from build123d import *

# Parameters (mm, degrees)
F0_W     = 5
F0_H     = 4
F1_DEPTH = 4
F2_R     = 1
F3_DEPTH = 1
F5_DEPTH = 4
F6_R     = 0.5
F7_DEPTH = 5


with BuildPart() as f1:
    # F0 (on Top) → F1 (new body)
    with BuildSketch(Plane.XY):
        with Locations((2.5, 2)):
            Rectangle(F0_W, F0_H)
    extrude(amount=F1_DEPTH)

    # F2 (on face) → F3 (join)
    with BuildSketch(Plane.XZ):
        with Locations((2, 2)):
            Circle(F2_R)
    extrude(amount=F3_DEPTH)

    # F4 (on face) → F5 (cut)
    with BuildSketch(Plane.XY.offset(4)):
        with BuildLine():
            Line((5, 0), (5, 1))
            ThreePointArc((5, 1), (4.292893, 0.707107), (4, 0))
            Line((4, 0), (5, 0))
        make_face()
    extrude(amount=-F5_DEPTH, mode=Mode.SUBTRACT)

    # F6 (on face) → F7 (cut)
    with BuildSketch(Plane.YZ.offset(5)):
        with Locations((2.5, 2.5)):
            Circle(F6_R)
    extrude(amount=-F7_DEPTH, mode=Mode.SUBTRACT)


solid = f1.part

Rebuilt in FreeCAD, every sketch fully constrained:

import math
import FreeCAD as App
import Part
import Sketcher


def add_polygon(sketch, points):
    """Adds a closed chain of lines whose ends are joined by coincident constraints."""
    first, n = sketch.GeometryCount, len(points)
    for a, b in zip(points, points[1:] + points[:1]):
        sketch.addGeometry(Part.LineSegment(App.Vector(*a, 0), App.Vector(*b, 0)), False)
    for i in range(n):
        sketch.addConstraint(Sketcher.Constraint("Coincident", first + i, 2, first + (i + 1) % n, 1))

doc = App.newDocument("Part")
params = doc.addObject("Spreadsheet::Sheet", "Params")
for row, (alias, value) in enumerate([
    ("sketch1_width", "5 mm"),
    ("sketch1_height", "4 mm"),
    ("pad1_length", "4 mm"),
    ("sketch2_diameter", "2 mm"),
    ("pad2_length", "1 mm"),
    ("sketch3_radius", "0.999999 mm"),
    ("pocket1_length", "4 mm"),
    ("sketch4_diameter", "1 mm"),
    ("pocket2_length", "5 mm"),
], start=1):
    params.set(f"A{row}", alias)
    params.set(f"B{row}", "=" + value)
    params.setAlias(f"B{row}", alias)

body = doc.addObject("PartDesign::Body", "Body")

# Sketch on XY plane
sketch1 = body.newObject("Sketcher::SketchObject", "Sketch")
sketch1.AttachmentSupport = (doc.getObject("XY_Plane"), [""])
sketch1.MapMode = "FlatFace"
add_polygon(sketch1, [(0, 4), (0, 0), (5, 0), (5, 4)])  # lines 0-3
sketch1.addConstraint([
    Sketcher.Constraint("Vertical", 0),
    Sketcher.Constraint("Horizontal", 1),
    Sketcher.Constraint("Vertical", 2),
    Sketcher.Constraint("Horizontal", 3),
    Sketcher.Constraint("Coincident", 0, 2, -1, 1),
    Sketcher.Constraint("DistanceX", 1, 1, 1, 2, 5.0),
    Sketcher.Constraint("DistanceY", 0, 2, 0, 1, 4.0),
])
sketch1.setExpression("Constraints[9]", "Params.sketch1_width")
sketch1.setExpression("Constraints[10]", "Params.sketch1_height")
pad1 = body.newObject("PartDesign::Pad", "Pad")
pad1.Profile = sketch1
pad1.setExpression("Length", "Params.pad1_length")

# Sketch on XZ plane
sketch2 = body.newObject("Sketcher::SketchObject", "Sketch001")
sketch2.AttachmentSupport = (doc.getObject("XZ_Plane"), [""])
sketch2.MapMode = "FlatFace"
sketch2.addGeometry(Part.Circle(App.Vector(2, 2, 0), App.Vector(0, 0, 1), 1), False)
sketch2.addConstraint([
    Sketcher.Constraint("Diameter", 0, 2.0),
    Sketcher.Constraint("DistanceX", -1, 1, 0, 3, 2.0),
    Sketcher.Constraint("DistanceY", -1, 1, 0, 3, 2.0),
])
sketch2.setExpression("Constraints[0]", "Params.sketch2_diameter")
pad2 = body.newObject("PartDesign::Pad", "Pad001")
pad2.Profile = sketch2
pad2.setExpression("Length", "Params.pad2_length")

# Sketch on XY plane
sketch3 = body.newObject("Sketcher::SketchObject", "Sketch002")
sketch3.AttachmentSupport = (doc.getObject("XY_Plane"), [""])
sketch3.MapMode = "FlatFace"
sketch3.AttachmentOffset = App.Placement(App.Vector(0, 0, 4), App.Rotation())
sketch3.addGeometry([
    Part.LineSegment(App.Vector(5, 0, 0), App.Vector(5, 1, 0)),
    Part.ArcOfCircle(Part.Circle(App.Vector(5, 0, 0), App.Vector(0, 0, 1), 1), math.radians(90), math.radians(180)),
    Part.LineSegment(App.Vector(4, 0, 0), App.Vector(5, 0, 0)),
], False)
sketch3.addConstraint([
    Sketcher.Constraint("Coincident", 0, 2, 1, 1),
    Sketcher.Constraint("Coincident", 1, 2, 2, 1),
    Sketcher.Constraint("Coincident", 2, 2, 0, 1),
    Sketcher.Constraint("Vertical", 0),
    Sketcher.Constraint("Horizontal", 2),
    Sketcher.Constraint("Coincident", 2, 2, 1, 3),
    Sketcher.Constraint("PointOnObject", 1, 3, -1),
    Sketcher.Constraint("Radius", 1, 0.999999),
    Sketcher.Constraint("DistanceX", -1, 1, 1, 3, 4.999999),
])
sketch3.setExpression("Constraints[7]", "Params.sketch3_radius")
pocket1 = body.newObject("PartDesign::Pocket", "Pocket")
pocket1.Profile = sketch3
pocket1.setExpression("Length", "Params.pocket1_length")

# Sketch on YZ plane
sketch4 = body.newObject("Sketcher::SketchObject", "Sketch003")
sketch4.AttachmentSupport = (doc.getObject("YZ_Plane"), [""])
sketch4.MapMode = "FlatFace"
sketch4.AttachmentOffset = App.Placement(App.Vector(0, 0, 5), App.Rotation())
sketch4.addGeometry(Part.Circle(App.Vector(2.5, 2.5, 0), App.Vector(0, 0, 1), 0.5), False)
sketch4.addConstraint([
    Sketcher.Constraint("Diameter", 0, 1.0),
    Sketcher.Constraint("DistanceX", -1, 1, 0, 3, 2.5),
    Sketcher.Constraint("DistanceY", -1, 1, 0, 3, 2.5),
])
sketch4.setExpression("Constraints[0]", "Params.sketch4_diameter")
pocket2 = body.newObject("PartDesign::Pocket", "Pocket001")
pocket2.Profile = sketch4
pocket2.setExpression("Length", "Params.pocket2_length")

doc.recompute()
